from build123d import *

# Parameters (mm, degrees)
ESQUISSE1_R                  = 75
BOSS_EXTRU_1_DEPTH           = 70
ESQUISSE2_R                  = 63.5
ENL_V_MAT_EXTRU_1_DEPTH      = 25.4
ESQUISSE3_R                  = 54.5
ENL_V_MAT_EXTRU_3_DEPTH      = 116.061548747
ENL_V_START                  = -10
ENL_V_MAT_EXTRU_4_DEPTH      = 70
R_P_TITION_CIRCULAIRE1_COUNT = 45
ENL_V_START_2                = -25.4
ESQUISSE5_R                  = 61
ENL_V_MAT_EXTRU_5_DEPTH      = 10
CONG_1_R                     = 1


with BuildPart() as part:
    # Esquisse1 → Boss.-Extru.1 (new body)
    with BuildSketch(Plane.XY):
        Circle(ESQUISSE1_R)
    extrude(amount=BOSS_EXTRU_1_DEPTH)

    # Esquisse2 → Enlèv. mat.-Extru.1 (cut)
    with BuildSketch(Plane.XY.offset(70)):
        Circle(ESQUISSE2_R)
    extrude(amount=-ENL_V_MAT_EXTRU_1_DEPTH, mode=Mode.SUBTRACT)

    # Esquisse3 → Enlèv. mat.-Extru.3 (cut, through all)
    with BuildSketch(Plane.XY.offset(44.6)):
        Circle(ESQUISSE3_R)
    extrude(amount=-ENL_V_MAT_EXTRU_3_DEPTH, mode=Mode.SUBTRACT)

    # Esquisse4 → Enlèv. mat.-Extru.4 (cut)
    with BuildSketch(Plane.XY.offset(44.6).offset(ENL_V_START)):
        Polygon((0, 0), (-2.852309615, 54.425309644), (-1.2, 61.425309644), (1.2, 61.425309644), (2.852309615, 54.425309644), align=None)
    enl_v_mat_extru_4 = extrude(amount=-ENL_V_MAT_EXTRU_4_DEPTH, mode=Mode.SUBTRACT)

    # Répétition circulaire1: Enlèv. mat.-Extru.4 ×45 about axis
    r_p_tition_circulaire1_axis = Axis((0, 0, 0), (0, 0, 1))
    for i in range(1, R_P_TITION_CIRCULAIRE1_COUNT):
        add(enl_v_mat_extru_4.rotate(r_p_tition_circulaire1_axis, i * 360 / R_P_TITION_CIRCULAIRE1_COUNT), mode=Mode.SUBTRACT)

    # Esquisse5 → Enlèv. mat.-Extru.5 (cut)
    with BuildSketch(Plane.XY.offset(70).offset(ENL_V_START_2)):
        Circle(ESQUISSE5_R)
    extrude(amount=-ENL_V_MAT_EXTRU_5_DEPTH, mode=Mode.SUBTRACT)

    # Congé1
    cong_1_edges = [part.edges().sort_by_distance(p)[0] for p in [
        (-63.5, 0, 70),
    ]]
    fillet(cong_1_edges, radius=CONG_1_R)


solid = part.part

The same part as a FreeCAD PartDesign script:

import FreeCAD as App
import Part
import Sketcher

V = App.Vector
Q = App.Units.Quantity


def edges_at(feature, points):
    """Names of the edges that pass closest to the given points."""
    edges = feature.Shape.Edges
    near = lambda p: min(range(len(edges)), key=lambda i: edges[i].distToShape(Part.Vertex(*p))[0])
    return sorted({f"Edge{near(p) + 1}" for p in points})


def add_polygon(sketch, points):
    """Adds a closed chain of lines whose ends are joined by coincident constraints."""
    first, n = sketch.GeometryCount, len(points)
    for a, b in zip(points, points[1:] + points[:1]):
        sketch.addGeometry(Part.LineSegment(App.Vector(*a, 0), App.Vector(*b, 0)), False)
    for i in range(n):
        sketch.addConstraint(Sketcher.Constraint("Coincident", first + i, 2, first + (i + 1) % n, 1))

doc = App.newDocument("Part")
body = doc.addObject("PartDesign::Body", "Body")

sketch1 = doc.addObject("Sketcher::SketchObject", "Sketch")
body.addObject(sketch1)
sketch1.AttachmentSupport = (doc.XY_Plane, [""])
sketch1.MapMode = "FlatFace"
sketch1.addGeometry(Part.Circle(V(0, 0, 0), V(0, 0, 1), 75), False)
sketch1.addConstraint(Sketcher.Constraint("Coincident", 0, 3, -1, 1))
sketch1.addConstraint(Sketcher.Constraint("Diameter", 0, 150.0))
pad1 = doc.addObject("PartDesign::Pad", "Pad")
body.addObject(pad1)
pad1.Profile = sketch1
pad1.Length = 70

sketch2 = doc.addObject("Sketcher::SketchObject", "Sketch001")
body.addObject(sketch2)
sketch2.AttachmentSupport = (doc.XY_Plane, [""])
sketch2.MapMode = "FlatFace"
sketch2.AttachmentOffset = App.Placement(V(0, 0, 70), App.Rotation())
sketch2.addGeometry(Part.Circle(V(0, 0, 0), V(0, 0, 1), 64), False)
sketch2.addConstraint(Sketcher.Constraint("Coincident", 0, 3, -1, 1))
sketch2.addConstraint(Sketcher.Constraint("Diameter", 0, 127.0))
pocket1 = doc.addObject("PartDesign::Pocket", "Pocket")
body.addObject(pocket1)
pocket1.Profile = sketch2
pocket1.Length = 25.4

sketch3 = doc.addObject("Sketcher::SketchObject", "Sketch002")
body.addObject(sketch3)
sketch3.AttachmentSupport = (doc.XY_Plane, [""])
sketch3.MapMode = "FlatFace"
sketch3.AttachmentOffset = App.Placement(V(0, 0, 44.6), App.Rotation())
sketch3.addGeometry(Part.Circle(V(0, 0, 0), V(0, 0, 1), 54), False)
sketch3.addConstraint(Sketcher.Constraint("Coincident", 0, 3, -1, 1))
sketch3.addConstraint(Sketcher.Constraint("Diameter", 0, 109.0))
pocket2 = doc.addObject("PartDesign::Pocket", "Pocket001")
body.addObject(pocket2)
pocket2.Profile = sketch3
pocket2.Type = "ThroughAll"

sketch4 = doc.addObject("Sketcher::SketchObject", "Sketch003")
body.addObject(sketch4)
sketch4.AttachmentSupport = (doc.XY_Plane, [""])
sketch4.MapMode = "FlatFace"
sketch4.AttachmentOffset = App.Placement(V(0, 0, 34.6), App.Rotation())
add_polygon(sketch4, [(-2.9, 54.4), (0, 0), (2.9, 54.4), (1.2, 61.4), (-1.2, 61.4)])
sketch4.addConstraint(Sketcher.Constraint("Horizontal", 3))
sketch4.addConstraint(Sketcher.Constraint("Coincident", 0, 2, -1, 1))
sketch4.addConstraint(Sketcher.Constraint("Symmetric", 1, 2, 4, 2, -2))
sketch4.addConstraint(Sketcher.Constraint("Equal", 2, 4))
sketch4.addConstraint(Sketcher.Constraint("Angle", 0, Q("-87 deg")))
sketch4.addConstraint(Sketcher.Constraint("DistanceX", 3, 2, 3, 1, 2.4))
sketch4.addConstraint(Sketcher.Constraint("DistanceY", 1, 2, 2, 2, 7.0))
sketch4.addConstraint(Sketcher.Constraint("Distance", 0, 54.5))
pocket3 = doc.addObject("PartDesign::Pocket", "Pocket002")
body.addObject(pocket3)
pocket3.Profile = sketch4
pocket3.Length = 70
doc.recompute()

polarpattern = doc.addObject("PartDesign::PolarPattern", "PolarPattern")
body.addObject(polarpattern)
polarpattern.Originals = [pocket3]
polarpattern.Axis = (doc.Z_Axis, [""])
polarpattern.Angle = 360
polarpattern.Occurrences = 45
body.Tip = polarpattern

sketch5 = doc.addObject("Sketcher::SketchObject", "Sketch004")
body.addObject(sketch5)
sketch5.AttachmentSupport = (doc.XY_Plane, [""])
sketch5.MapMode = "FlatFace"
sketch5.AttachmentOffset = App.Placement(V(0, 0, 44.6), App.Rotation())
sketch5.addGeometry(Part.Circle(V(0, 0, 0), V(0, 0, 1), 61), False)
sketch5.addConstraint(Sketcher.Constraint("Coincident", 0, 3, -1, 1))
sketch5.addConstraint(Sketcher.Constraint("Diameter", 0, 122.0))
pocket4 = doc.addObject("PartDesign::Pocket", "Pocket003")
body.addObject(pocket4)
pocket4.Profile = sketch5
pocket4.Length = 10
doc.recompute()

fillet = doc.addObject("PartDesign::Fillet", "Fillet")
body.addObject(fillet)
fillet.Base = (pocket4, edges_at(pocket4, [(-63.5, 0, 70)]))
fillet.Radius = 1

doc.recompute()
